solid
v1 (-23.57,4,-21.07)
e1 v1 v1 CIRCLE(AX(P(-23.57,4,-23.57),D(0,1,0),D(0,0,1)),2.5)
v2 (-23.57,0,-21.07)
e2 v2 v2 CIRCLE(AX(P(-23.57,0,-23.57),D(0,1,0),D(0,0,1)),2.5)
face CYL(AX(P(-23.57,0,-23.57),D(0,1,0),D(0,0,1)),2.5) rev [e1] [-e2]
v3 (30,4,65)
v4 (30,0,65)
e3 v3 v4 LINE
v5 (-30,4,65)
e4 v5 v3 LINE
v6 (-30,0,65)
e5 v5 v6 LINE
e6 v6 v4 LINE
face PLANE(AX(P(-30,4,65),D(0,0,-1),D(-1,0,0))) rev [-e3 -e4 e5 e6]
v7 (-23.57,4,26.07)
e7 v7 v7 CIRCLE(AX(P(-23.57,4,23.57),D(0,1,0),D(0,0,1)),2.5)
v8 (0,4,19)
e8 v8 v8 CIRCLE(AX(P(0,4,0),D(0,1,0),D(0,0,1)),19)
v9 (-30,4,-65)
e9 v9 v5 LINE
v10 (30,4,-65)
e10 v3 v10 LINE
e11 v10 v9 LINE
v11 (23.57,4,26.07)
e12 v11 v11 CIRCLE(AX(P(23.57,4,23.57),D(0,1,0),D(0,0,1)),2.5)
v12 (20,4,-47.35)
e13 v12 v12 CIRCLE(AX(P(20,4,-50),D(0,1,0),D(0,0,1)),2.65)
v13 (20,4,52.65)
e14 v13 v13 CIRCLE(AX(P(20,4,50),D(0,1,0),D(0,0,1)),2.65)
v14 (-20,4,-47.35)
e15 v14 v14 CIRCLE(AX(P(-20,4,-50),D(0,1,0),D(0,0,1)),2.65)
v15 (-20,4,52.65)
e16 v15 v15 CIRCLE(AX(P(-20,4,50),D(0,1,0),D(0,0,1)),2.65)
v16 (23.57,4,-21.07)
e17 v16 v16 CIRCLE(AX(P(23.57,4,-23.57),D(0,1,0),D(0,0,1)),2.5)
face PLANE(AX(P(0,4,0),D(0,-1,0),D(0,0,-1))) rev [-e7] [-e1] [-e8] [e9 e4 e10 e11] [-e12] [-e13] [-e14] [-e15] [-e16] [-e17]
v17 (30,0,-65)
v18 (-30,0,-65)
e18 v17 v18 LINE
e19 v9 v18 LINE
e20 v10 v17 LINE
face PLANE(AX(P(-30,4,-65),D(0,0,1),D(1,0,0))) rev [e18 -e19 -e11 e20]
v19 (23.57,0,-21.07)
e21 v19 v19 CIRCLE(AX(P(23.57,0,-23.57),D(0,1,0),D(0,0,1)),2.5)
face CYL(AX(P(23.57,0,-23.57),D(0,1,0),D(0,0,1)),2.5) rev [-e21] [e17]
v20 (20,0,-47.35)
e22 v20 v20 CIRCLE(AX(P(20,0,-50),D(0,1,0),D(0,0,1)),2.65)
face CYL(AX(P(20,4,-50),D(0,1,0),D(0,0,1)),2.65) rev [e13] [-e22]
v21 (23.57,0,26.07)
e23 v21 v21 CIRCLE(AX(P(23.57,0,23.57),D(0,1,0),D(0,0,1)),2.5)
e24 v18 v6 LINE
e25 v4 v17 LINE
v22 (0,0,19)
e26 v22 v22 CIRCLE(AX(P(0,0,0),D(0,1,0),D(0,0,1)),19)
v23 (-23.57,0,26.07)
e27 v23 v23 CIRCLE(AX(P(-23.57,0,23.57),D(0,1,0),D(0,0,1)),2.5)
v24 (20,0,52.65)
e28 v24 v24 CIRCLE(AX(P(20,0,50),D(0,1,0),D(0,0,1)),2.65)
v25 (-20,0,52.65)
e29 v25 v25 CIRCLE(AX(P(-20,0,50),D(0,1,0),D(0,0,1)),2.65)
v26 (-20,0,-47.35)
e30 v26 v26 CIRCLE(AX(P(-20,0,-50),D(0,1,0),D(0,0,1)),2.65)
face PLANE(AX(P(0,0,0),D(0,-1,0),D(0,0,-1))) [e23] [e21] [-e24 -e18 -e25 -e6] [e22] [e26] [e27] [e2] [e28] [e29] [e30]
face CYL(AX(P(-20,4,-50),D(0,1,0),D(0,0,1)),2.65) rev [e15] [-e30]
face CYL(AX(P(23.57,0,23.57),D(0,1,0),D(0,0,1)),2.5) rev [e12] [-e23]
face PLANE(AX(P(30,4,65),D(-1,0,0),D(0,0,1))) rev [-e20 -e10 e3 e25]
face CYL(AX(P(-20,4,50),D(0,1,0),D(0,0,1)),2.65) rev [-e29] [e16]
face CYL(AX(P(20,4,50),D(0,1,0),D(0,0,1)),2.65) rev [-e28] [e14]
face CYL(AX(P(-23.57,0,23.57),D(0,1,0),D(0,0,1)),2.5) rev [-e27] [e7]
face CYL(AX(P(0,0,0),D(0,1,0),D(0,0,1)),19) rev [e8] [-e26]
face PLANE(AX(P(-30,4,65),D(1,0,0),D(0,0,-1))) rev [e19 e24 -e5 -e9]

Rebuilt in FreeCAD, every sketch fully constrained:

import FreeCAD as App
import Part
import Sketcher
from FreeCAD import Vector


def add_polygon(sketch, points):
    """Adds a closed chain of lines whose ends are joined by coincident constraints."""
    first, n = sketch.GeometryCount, len(points)
    for a, b in zip(points, points[1:] + points[:1]):
        sketch.addGeometry(Part.LineSegment(App.Vector(*a, 0), App.Vector(*b, 0)), False)
    for i in range(n):
        sketch.addConstraint(Sketcher.Constraint("Coincident", first + i, 2, first + (i + 1) % n, 1))

doc = App.newDocument("Part")
body = doc.addObject("PartDesign::Body", "Body")

# Sketch on XZ plane
sketch1 = body.newObject("Sketcher::SketchObject", "Sketch")
sketch1.AttachmentSupport = (doc.getObject("XZ_Plane"), [""])
sketch1.MapMode = "FlatFace"
add_polygon(sketch1, [(-30, -65), (-30, 65), (30, 65), (30, -65)])  # lines 0-3
sketch1.addConstraint([
    Sketcher.Constraint("Vertical", 0),
    Sketcher.Constraint("Horizontal", 1),
    Sketcher.Constraint("Vertical", 2),
    Sketcher.Constraint("Horizontal", 3),
    Sketcher.Constraint("Symmetric", 0, 2, 2, 2, -1, 1),
    Sketcher.Constraint("DistanceX", 1, 1, 1, 2, 60.0),
    Sketcher.Constraint("DistanceY", 0, 1, 0, 2, 130.0),
])
pad1 = body.newObject("PartDesign::Pad", "Pad")
pad1.Profile = sketch1
pad1.Length = 4
pad1.Reversed = True

# Sketch on XZ plane
sketch2 = body.newObject("Sketcher::SketchObject", "Sketch001")
sketch2.AttachmentSupport = (doc.getObject("XZ_Plane"), [""])
sketch2.MapMode = "FlatFace"
sketch2.AttachmentOffset = App.Placement(Vector(0, 0, -4), App.Rotation())
sketch2.addGeometry([
    Part.Circle(Vector(0, 0, 0), Vector(0, 0, 1), 19),  # 0
    Part.Circle(Vector(-23.6, -23.6, 0), Vector(0, 0, 1), 2.5),  # 1
    Part.Circle(Vector(23.6, -23.6, 0), Vector(0, 0, 1), 2.5),  # 2
    Part.Circle(Vector(23.6, 23.6, 0), Vector(0, 0, 1), 2.5),  # 3
    Part.Circle(Vector(-23.6, 23.6, 0), Vector(0, 0, 1), 2.5),  # 4
], False)
sketch2.addConstraint([
    Sketcher.Constraint("Coincident", 0, 3, -1, 1),
    Sketcher.Constraint("Equal", 1, 2),
    Sketcher.Constraint("Equal", 2, 3),
    Sketcher.Constraint("Equal", 3, 4),
    Sketcher.Constraint("Symmetric", 1, 3, 3, 3, -1, 1),
    Sketcher.Constraint("Symmetric", 2, 3, 4, 3, -1, 1),
    Sketcher.Constraint("Symmetric", 1, 3, 2, 3, -2),
    Sketcher.Constraint("Diameter", 0, 38.0),
    Sketcher.Constraint("Diameter", 1, 5.0),
    Sketcher.Constraint("DistanceX", 1, 3, -1, 1, 23.57),
    Sketcher.Constraint("DistanceY", 1, 3, -1, 1, 23.57),
])
pocket1 = body.newObject("PartDesign::Pocket", "Pocket")
pocket1.Profile = sketch2
pocket1.Type = "ThroughAll"
pocket1.Reversed = True

# Sketch on XZ plane
sketch3 = body.newObject("Sketcher::SketchObject", "Sketch002")
sketch3.AttachmentSupport = (doc.getObject("XZ_Plane"), [""])
sketch3.MapMode = "FlatFace"
sketch3.AttachmentOffset = App.Placement(Vector(0, 0, -4), App.Rotation())
sketch3.addGeometry([
    Part.Circle(Vector(-20, 50, 0), Vector(0, 0, 1), 2.6),
    Part.Circle(Vector(20, 50, 0), Vector(0, 0, 1), 2.6),
    Part.Circle(Vector(-20, -50, 0), Vector(0, 0, 1), 2.6),
    Part.Circle(Vector(20, -50, 0), Vector(0, 0, 1), 2.6),
], False)
sketch3.addConstraint([
    Sketcher.Constraint("Equal", 0, 1),
    Sketcher.Constraint("Equal", 1, 2),
    Sketcher.Constraint("Equal", 2, 3),
    Sketcher.Constraint("Symmetric", 1, 3, 2, 3, -1, 1),
    Sketcher.Constraint("Symmetric", 0, 3, 3, 3, -1, 1),
    Sketcher.Constraint("Symmetric", 0, 3, 1, 3, -2),
    Sketcher.Constraint("Diameter", 0, 5.3),
    Sketcher.Constraint("DistanceX", 0, 3, -1, 1, 20.0),
    Sketcher.Constraint("DistanceY", -1, 1, 0, 3, 50.0),
])
doc.recompute()
hole = body.newObject("PartDesign::Hole", "Hole")
hole.Profile = sketch3
hole.ThreadType = "None"
hole.Diameter = 5.3
hole.DepthType = "ThroughAll"
hole.Reversed = True

doc.recompute()
